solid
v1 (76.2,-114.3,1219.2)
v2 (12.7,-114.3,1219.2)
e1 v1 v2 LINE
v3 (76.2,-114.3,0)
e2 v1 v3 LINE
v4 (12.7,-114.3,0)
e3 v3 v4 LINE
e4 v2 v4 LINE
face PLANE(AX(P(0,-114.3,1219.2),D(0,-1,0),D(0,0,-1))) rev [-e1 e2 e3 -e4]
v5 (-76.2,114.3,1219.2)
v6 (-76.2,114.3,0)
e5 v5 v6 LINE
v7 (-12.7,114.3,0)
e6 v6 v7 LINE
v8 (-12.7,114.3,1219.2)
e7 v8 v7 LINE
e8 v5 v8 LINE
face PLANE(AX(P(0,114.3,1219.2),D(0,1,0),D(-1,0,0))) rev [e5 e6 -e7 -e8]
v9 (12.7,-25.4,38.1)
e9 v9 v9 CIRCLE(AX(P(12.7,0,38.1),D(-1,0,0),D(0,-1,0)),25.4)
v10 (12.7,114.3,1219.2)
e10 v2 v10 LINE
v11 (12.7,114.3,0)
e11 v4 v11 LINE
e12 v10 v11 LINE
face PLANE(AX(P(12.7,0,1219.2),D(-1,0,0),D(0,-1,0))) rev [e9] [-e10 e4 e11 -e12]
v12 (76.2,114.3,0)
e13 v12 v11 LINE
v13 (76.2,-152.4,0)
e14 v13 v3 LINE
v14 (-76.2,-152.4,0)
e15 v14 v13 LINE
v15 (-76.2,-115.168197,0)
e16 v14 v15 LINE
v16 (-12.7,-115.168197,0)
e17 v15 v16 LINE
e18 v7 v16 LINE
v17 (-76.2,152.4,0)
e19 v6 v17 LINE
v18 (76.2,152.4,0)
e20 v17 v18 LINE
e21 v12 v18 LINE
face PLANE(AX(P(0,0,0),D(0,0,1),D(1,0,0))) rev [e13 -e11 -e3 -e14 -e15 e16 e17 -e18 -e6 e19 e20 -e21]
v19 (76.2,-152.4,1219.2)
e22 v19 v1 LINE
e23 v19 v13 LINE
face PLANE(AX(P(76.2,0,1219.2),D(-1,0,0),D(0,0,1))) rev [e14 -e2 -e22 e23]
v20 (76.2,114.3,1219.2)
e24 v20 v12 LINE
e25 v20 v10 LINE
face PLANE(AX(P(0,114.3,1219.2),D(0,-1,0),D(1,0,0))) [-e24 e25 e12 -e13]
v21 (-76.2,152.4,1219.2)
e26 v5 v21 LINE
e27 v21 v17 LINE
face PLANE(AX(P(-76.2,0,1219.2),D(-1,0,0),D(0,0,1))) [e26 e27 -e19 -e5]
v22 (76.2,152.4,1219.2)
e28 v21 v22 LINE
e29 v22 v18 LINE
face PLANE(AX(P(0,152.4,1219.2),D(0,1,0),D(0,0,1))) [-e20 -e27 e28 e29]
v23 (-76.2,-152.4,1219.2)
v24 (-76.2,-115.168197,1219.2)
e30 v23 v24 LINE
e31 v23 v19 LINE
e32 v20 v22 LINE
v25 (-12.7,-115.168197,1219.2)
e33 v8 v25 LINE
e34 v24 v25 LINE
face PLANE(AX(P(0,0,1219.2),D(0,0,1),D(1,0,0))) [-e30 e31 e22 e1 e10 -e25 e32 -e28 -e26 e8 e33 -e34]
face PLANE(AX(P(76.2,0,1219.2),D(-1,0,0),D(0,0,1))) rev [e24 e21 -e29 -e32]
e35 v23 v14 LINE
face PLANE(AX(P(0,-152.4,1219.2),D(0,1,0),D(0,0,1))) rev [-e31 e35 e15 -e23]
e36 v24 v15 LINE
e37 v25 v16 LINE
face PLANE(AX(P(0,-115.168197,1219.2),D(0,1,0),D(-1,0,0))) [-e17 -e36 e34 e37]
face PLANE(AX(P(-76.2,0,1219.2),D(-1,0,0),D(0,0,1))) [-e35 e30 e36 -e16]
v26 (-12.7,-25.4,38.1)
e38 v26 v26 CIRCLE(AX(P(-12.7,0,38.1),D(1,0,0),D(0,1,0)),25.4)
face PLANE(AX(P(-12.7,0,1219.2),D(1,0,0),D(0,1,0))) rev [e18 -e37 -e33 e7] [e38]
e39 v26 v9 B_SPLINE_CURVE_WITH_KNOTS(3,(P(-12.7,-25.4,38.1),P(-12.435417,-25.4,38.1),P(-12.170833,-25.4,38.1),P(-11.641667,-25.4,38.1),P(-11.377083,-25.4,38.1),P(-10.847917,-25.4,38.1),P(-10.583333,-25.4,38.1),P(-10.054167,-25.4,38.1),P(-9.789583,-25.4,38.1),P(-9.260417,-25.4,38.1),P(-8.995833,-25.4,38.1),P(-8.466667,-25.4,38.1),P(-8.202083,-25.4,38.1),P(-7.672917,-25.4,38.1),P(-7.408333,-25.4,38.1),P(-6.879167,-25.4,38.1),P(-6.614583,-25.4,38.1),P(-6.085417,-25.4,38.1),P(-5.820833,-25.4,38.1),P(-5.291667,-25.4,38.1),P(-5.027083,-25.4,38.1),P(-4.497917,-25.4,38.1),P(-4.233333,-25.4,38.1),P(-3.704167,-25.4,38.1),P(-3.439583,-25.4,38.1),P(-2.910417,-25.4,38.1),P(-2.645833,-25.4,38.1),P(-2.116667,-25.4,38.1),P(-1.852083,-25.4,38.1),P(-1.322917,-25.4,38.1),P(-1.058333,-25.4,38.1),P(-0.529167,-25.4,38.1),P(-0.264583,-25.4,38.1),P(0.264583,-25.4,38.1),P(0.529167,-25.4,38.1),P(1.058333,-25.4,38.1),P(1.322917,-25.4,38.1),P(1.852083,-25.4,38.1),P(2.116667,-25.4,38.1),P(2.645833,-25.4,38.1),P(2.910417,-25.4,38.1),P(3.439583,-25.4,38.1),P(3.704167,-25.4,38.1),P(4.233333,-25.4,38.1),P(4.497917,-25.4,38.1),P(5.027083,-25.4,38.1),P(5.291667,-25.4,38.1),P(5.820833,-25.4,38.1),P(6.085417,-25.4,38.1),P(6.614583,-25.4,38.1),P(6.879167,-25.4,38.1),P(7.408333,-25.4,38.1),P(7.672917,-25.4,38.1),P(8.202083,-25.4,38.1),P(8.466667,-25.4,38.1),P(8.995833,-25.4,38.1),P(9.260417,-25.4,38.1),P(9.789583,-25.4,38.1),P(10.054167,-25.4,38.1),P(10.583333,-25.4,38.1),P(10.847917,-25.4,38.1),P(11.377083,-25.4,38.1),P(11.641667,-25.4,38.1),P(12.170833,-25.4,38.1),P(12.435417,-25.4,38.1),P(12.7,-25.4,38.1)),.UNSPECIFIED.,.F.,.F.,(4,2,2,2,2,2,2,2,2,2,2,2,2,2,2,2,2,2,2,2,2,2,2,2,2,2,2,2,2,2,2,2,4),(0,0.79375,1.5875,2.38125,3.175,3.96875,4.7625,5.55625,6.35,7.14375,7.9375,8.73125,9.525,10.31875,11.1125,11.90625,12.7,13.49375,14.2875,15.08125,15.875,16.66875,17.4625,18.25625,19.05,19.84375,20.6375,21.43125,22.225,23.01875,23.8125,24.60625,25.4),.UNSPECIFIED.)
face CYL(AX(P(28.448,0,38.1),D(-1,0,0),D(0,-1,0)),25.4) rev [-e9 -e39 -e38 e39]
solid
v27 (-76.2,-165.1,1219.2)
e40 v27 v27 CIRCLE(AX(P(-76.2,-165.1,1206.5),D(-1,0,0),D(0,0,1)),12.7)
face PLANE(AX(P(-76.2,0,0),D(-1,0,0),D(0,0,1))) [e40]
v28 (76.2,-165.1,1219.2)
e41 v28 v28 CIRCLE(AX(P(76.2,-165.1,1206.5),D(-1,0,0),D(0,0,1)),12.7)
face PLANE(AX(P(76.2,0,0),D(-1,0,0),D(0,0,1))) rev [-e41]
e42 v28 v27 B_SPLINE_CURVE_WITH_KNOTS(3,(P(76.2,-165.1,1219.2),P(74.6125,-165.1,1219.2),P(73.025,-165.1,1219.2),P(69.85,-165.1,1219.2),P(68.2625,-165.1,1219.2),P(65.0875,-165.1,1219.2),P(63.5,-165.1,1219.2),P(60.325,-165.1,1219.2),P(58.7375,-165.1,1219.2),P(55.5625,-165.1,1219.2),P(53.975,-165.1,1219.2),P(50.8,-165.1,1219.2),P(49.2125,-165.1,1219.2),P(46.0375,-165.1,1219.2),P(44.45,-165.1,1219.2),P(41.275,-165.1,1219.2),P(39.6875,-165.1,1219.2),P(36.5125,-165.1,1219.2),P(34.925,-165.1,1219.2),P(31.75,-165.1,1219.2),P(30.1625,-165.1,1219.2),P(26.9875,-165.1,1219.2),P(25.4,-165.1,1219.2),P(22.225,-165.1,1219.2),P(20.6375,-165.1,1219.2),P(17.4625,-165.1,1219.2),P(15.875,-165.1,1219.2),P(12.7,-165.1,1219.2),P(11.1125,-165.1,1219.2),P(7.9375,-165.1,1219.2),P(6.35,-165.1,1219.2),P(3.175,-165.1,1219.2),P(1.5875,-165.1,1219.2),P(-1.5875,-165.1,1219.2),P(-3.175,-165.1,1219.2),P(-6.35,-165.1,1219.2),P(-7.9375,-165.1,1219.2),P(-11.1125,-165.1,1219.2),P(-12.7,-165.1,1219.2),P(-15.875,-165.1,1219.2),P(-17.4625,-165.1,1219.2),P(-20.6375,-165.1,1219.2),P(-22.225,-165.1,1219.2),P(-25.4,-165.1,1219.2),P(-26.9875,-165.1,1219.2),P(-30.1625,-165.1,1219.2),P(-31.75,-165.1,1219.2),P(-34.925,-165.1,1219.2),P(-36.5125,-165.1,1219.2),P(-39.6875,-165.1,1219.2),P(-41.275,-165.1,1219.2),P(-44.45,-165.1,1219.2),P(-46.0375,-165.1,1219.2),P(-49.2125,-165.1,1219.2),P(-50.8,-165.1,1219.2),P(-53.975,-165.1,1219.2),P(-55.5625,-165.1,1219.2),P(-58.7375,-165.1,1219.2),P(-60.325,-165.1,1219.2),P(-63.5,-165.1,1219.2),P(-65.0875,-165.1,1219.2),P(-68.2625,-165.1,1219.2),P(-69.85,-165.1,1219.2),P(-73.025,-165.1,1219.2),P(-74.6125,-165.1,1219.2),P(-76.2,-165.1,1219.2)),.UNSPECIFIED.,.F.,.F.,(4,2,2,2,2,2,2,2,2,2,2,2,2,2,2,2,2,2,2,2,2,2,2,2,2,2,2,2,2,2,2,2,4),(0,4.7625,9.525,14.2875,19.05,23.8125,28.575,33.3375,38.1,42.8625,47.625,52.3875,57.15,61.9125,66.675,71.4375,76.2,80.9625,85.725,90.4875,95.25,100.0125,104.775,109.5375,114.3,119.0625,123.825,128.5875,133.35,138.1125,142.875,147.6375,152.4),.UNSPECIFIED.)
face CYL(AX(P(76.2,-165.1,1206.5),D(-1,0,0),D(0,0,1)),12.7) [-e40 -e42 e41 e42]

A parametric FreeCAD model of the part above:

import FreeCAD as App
import Part
import Sketcher
Q = App.Units.Quantity

doc = App.newDocument("Part")
body = doc.addObject("PartDesign::Body", "Body")

sketch1 = body.newObject("Sketcher::SketchObject", "Sketch")
sketch1.AttachmentSupport = (doc.getObject("XY_Plane"), [""])
sketch1.MapMode = "FlatFace"
sketch1.addGeometry(Part.LineSegment(App.Vector(-76.2, -152.4, 0), App.Vector(76.2, -152.4, 0)), False)
sketch1.addGeometry(Part.LineSegment(App.Vector(76.2, -152.4, 0), App.Vector(76.2, -114.3, 0)), False)
sketch1.addGeometry(Part.LineSegment(App.Vector(76.2, -114.3, 0), App.Vector(12.7, -114.3, 0)), False)
sketch1.addGeometry(Part.LineSegment(App.Vector(12.7, -114.3, 0), App.Vector(12.7, 114.3, 0)), False)
sketch1.addGeometry(Part.LineSegment(App.Vector(12.7, 114.3, 0), App.Vector(76.2, 114.3, 0)), False)
sketch1.addGeometry(Part.LineSegment(App.Vector(76.2, 114.3, 0), App.Vector(76.2, 152.4, 0)), False)
sketch1.addGeometry(Part.LineSegment(App.Vector(76.2, 152.4, 0), App.Vector(-76.2, 152.4, 0)), False)
sketch1.addGeometry(Part.LineSegment(App.Vector(-76.2, 152.4, 0), App.Vector(-76.2, 114.3, 0)), False)
sketch1.addGeometry(Part.LineSegment(App.Vector(-76.2, 114.3, 0), App.Vector(-12.7, 114.3, 0)), False)
sketch1.addGeometry(Part.LineSegment(App.Vector(-12.7, 114.3, 0), App.Vector(-12.7, -115.168197, 0)), False)
sketch1.addGeometry(Part.LineSegment(App.Vector(-12.7, -115.168197, 0), App.Vector(-76.2, -115.168197, 0)), False)
sketch1.addGeometry(Part.LineSegment(App.Vector(-76.2, -115.168197, 0), App.Vector(-76.2, -152.4, 0)), False)
sketch1.addConstraint(Sketcher.Constraint("Coincident", 0, 2, 1, 1))
sketch1.addConstraint(Sketcher.Constraint("Coincident", 1, 2, 2, 1))
sketch1.addConstraint(Sketcher.Constraint("Coincident", 2, 2, 3, 1))
sketch1.addConstraint(Sketcher.Constraint("Coincident", 3, 2, 4, 1))
sketch1.addConstraint(Sketcher.Constraint("Coincident", 4, 2, 5, 1))
sketch1.addConstraint(Sketcher.Constraint("Coincident", 5, 2, 6, 1))
sketch1.addConstraint(Sketcher.Constraint("Coincident", 6, 2, 7, 1))
sketch1.addConstraint(Sketcher.Constraint("Coincident", 7, 2, 8, 1))
sketch1.addConstraint(Sketcher.Constraint("Coincident", 8, 2, 9, 1))
sketch1.addConstraint(Sketcher.Constraint("Coincident", 9, 2, 10, 1))
sketch1.addConstraint(Sketcher.Constraint("Coincident", 10, 2, 11, 1))
sketch1.addConstraint(Sketcher.Constraint("Coincident", 11, 2, 0, 1))
sketch1.addConstraint(Sketcher.Constraint("Horizontal", 0))
sketch1.addConstraint(Sketcher.Constraint("Vertical", 1))
sketch1.addConstraint(Sketcher.Constraint("Horizontal", 2))
sketch1.addConstraint(Sketcher.Constraint("Vertical", 3))
sketch1.addConstraint(Sketcher.Constraint("Horizontal", 4))
sketch1.addConstraint(Sketcher.Constraint("Vertical", 5))
sketch1.addConstraint(Sketcher.Constraint("Horizontal", 6))
sketch1.addConstraint(Sketcher.Constraint("Vertical", 7))
sketch1.addConstraint(Sketcher.Constraint("Horizontal", 8))
sketch1.addConstraint(Sketcher.Constraint("Vertical", 9))
sketch1.addConstraint(Sketcher.Constraint("Horizontal", 10))
sketch1.addConstraint(Sketcher.Constraint("Vertical", 11))
sketch1.addConstraint(Sketcher.Constraint("Symmetric", 0, 2, 6, 2, -1, 1))
sketch1.addConstraint(Sketcher.Constraint("Symmetric", 2, 2, 8, 2, -1, 1))
sketch1.addConstraint(Sketcher.Constraint("Symmetric", 4, 2, 7, 2, -2))
sketch1.addConstraint(Sketcher.Constraint("Vertical", 7, 2, 10, 2))
sketch1.addConstraint(Sketcher.Constraint("DistanceX", 0, 1, 0, 2, Q("6 in")))
sketch1.addConstraint(Sketcher.Constraint("DistanceY", 3, 1, 3, 2, Q("9 in")))
sketch1.addConstraint(Sketcher.Constraint("DistanceX", 2, 2, 2, 1, Q("2.5 in")))
sketch1.addConstraint(Sketcher.Constraint("DistanceY", 1, 1, 1, 2, Q("1.5 in")))
sketch1.addConstraint(Sketcher.Constraint("DistanceY", 9, 2, 9, 1, Q("229.468197 mm")))
pad1 = body.newObject("PartDesign::Pad", "Pad")
pad1.Profile = sketch1
pad1.Length = Q("48 in")

sketch2 = body.newObject("Sketcher::SketchObject", "Sketch001")
sketch2.AttachmentSupport = (doc.getObject("YZ_Plane"), [""])
sketch2.MapMode = "FlatFace"
sketch2.AttachmentOffset = App.Placement(App.Vector(0, 0, -0.5 * 25.4), App.Rotation())
sketch2.addGeometry(Part.Circle(App.Vector(0, 38.1, 0), App.Vector(0, 0, 1), 25.4), False)
sketch2.addConstraint(Sketcher.Constraint("PointOnObject", 0, 3, -2))
sketch2.addConstraint(Sketcher.Constraint("Diameter", 0, Q("2 in")))
sketch2.addConstraint(Sketcher.Constraint("DistanceY", -1, 1, 0, 3, Q("1.5 in")))
pocket1 = body.newObject("PartDesign::Pocket", "Pocket")
pocket1.Profile = sketch2
pocket1.Type = "ThroughAll"
pocket1.Midplane = True
body2 = doc.addObject("PartDesign::Body", "Body001")

sketch3 = body2.newObject("Sketcher::SketchObject", "Sketch002")
sketch3.AttachmentSupport = (doc.getObject("YZ_Plane001"), [""])
sketch3.MapMode = "FlatFace"
sketch3.AttachmentOffset = App.Placement(App.Vector(0, 0, -3 * 25.4), App.Rotation())
sketch3.addGeometry(Part.Circle(App.Vector(-165.1, 1206.5, 0), App.Vector(0, 0, 1), 12.7), False)
sketch3.addConstraint(Sketcher.Constraint("Diameter", 0, Q("1 in")))
sketch3.addConstraint(Sketcher.Constraint("DistanceX", 0, 3, -1, 1, Q("6.5 in")))
sketch3.addConstraint(Sketcher.Constraint("DistanceY", -1, 1, 0, 3, Q("47.5 in")))
pad2 = body2.newObject("PartDesign::Pad", "Pad001")
pad2.Profile = sketch3
pad2.Length = Q("6 in")

doc.recompute()
